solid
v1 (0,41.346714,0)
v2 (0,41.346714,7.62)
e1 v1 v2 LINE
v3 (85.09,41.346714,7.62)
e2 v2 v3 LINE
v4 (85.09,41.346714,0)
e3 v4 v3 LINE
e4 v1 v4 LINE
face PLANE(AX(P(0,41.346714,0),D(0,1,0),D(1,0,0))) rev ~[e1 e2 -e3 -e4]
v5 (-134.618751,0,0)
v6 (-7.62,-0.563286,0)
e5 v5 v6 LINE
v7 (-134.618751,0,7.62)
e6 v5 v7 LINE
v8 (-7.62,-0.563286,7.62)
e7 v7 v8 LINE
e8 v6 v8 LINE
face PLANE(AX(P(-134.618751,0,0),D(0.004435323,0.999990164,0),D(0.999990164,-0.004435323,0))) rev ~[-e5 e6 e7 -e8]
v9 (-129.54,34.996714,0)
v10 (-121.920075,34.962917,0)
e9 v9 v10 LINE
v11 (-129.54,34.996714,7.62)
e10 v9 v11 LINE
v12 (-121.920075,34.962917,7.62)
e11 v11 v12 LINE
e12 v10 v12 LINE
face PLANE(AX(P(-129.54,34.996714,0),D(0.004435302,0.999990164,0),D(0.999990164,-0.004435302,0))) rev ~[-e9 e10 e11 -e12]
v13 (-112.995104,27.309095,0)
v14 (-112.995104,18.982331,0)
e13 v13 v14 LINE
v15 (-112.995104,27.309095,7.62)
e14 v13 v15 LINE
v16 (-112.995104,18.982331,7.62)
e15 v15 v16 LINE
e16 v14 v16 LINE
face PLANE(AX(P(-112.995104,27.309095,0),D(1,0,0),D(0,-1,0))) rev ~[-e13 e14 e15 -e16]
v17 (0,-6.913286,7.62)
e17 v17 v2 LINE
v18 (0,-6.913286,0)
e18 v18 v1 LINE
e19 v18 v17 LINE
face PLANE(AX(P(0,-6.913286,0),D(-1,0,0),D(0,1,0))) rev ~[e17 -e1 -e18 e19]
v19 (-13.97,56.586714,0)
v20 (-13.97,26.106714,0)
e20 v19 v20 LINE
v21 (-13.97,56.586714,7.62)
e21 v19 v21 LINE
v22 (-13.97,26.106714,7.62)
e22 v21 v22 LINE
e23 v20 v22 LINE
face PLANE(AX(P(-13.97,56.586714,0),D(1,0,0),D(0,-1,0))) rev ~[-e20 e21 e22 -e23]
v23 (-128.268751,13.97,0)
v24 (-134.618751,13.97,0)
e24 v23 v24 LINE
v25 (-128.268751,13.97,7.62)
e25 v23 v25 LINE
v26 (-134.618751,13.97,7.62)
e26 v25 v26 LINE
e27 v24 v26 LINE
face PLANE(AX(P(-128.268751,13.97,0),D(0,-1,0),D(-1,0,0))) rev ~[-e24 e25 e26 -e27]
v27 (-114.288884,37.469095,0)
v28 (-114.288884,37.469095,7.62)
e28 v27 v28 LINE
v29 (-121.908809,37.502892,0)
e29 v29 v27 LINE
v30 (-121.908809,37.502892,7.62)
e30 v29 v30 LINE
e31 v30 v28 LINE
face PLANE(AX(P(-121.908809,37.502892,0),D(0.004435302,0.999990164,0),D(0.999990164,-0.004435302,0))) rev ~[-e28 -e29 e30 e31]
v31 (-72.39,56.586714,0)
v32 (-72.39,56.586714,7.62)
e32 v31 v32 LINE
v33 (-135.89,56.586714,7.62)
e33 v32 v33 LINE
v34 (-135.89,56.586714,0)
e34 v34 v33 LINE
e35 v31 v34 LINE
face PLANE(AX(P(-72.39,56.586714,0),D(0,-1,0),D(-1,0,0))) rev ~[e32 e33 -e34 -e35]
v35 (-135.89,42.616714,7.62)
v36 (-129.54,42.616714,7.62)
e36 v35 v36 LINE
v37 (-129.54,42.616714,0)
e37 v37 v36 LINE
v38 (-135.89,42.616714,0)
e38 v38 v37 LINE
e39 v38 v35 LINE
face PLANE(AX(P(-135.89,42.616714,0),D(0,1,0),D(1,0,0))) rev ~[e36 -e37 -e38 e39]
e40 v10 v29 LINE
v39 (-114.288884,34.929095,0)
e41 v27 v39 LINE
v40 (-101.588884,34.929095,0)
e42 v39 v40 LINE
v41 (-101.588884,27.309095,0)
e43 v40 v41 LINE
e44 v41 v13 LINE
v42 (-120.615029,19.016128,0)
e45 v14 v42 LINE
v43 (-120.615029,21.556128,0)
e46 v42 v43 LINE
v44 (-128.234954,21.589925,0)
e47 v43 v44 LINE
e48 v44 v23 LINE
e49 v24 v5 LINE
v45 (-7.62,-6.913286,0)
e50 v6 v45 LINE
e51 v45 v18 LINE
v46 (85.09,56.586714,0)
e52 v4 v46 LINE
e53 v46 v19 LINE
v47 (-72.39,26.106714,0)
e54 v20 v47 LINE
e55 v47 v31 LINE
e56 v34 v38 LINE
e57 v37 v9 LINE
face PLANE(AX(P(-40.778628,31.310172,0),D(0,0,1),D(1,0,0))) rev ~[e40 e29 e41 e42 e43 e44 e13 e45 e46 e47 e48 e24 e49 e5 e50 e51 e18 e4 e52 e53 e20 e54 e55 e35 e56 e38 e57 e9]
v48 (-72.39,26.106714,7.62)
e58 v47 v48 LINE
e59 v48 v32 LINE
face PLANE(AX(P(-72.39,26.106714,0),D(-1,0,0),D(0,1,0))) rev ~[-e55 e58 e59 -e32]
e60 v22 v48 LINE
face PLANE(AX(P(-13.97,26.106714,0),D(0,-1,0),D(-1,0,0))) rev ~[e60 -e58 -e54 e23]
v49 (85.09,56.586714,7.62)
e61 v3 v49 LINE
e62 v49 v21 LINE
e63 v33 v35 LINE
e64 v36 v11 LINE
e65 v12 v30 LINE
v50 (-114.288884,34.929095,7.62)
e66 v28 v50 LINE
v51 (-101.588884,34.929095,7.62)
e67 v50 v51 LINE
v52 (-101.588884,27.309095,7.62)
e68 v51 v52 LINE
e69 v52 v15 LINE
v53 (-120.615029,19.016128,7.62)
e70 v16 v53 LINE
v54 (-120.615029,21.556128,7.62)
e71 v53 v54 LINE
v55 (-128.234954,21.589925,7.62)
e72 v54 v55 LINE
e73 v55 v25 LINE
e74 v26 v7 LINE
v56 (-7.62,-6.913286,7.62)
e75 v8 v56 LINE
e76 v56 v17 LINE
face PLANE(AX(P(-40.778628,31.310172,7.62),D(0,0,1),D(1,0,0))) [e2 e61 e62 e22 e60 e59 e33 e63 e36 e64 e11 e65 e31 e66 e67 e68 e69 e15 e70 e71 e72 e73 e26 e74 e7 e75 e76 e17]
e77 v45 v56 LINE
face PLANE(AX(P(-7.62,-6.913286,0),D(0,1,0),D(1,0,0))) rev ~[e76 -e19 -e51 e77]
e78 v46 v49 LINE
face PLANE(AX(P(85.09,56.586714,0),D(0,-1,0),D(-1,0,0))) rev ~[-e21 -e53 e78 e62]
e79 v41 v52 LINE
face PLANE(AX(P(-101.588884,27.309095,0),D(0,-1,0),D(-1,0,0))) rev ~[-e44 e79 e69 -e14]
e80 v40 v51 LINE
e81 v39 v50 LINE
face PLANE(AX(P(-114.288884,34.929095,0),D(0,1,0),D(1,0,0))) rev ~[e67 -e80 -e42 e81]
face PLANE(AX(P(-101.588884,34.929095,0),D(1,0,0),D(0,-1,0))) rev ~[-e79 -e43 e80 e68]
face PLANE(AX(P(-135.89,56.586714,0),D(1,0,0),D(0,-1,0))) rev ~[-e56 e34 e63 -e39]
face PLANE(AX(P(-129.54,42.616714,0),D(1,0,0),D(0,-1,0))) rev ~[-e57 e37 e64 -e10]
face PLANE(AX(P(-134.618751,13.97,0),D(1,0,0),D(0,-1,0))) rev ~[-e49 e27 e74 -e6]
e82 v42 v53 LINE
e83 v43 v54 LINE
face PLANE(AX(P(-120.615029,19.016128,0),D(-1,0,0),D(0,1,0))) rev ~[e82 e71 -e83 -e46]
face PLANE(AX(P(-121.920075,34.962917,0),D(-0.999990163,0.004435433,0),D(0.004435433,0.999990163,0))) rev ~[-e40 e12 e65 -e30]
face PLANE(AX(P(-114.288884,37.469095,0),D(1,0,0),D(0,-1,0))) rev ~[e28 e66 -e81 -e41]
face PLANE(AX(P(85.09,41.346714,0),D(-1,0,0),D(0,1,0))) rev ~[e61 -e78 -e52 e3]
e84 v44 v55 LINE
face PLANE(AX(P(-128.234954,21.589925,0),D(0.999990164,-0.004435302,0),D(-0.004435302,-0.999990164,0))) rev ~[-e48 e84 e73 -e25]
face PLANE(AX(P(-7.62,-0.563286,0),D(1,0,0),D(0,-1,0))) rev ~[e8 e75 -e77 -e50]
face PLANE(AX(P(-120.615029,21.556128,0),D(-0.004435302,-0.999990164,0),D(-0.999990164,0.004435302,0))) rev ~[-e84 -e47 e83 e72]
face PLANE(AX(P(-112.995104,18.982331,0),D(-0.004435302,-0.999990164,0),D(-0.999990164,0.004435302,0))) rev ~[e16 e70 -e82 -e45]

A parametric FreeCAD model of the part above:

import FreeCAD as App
import Part
import Sketcher
Q = App.Units.Quantity

doc = App.newDocument("Part")
body = doc.addObject("PartDesign::Body", "Body")

# Sketch on XY plane
sketch1 = body.newObject("Sketcher::SketchObject", "Sketch")
sketch1.AttachmentSupport = (doc.getObject("XY_Plane"), [""])
sketch1.MapMode = "FlatFace"
sketch1.addGeometry([
    Part.LineSegment(App.Vector(-72.4, 56.6, 0), App.Vector(-135.9, 56.6, 0)),  # 0
    Part.LineSegment(App.Vector(-135.9, 56.6, 0), App.Vector(-135.9, 42.6, 0)),  # 1
    Part.LineSegment(App.Vector(-135.9, 42.6, 0), App.Vector(-129.5, 42.6, 0)),  # 2
    Part.LineSegment(App.Vector(-129.5, 42.6, 0), App.Vector(-129.5, 35, 0)),  # 3
    Part.LineSegment(App.Vector(-129.5, 35, 0), App.Vector(-121.9, 35, 0)),  # 4
    Part.LineSegment(App.Vector(-121.9, 35, 0), App.Vector(-121.9, 37.5, 0)),  # 5
    Part.LineSegment(App.Vector(-121.9, 37.5, 0), App.Vector(-114.3, 37.5, 0)),  # 6
    Part.LineSegment(App.Vector(-114.3, 37.5, 0), App.Vector(-114.3, 34.9, 0)),  # 7
    Part.LineSegment(App.Vector(-114.3, 34.9, 0), App.Vector(-101.6, 34.9, 0)),  # 8
    Part.LineSegment(App.Vector(-101.6, 34.9, 0), App.Vector(-101.6, 27.3, 0)),  # 9
    Part.LineSegment(App.Vector(-101.6, 27.3, 0), App.Vector(-113, 27.3, 0)),  # 10
    Part.LineSegment(App.Vector(-113, 27.3, 0), App.Vector(-113, 19, 0)),  # 11
    Part.LineSegment(App.Vector(-113, 19, 0), App.Vector(-120.6, 19, 0)),  # 12
    Part.LineSegment(App.Vector(-120.6, 19, 0), App.Vector(-120.6, 21.6, 0)),  # 13
    Part.LineSegment(App.Vector(-120.6, 21.6, 0), App.Vector(-128.2, 21.6, 0)),  # 14
    Part.LineSegment(App.Vector(-128.2, 21.6, 0), App.Vector(-128.3, 14, 0)),  # 15
    Part.LineSegment(App.Vector(-128.3, 14, 0), App.Vector(-134.6, 14, 0)),  # 16
    Part.LineSegment(App.Vector(-134.6, 14, 0), App.Vector(-134.6, 0, 0)),  # 17
    Part.LineSegment(App.Vector(-134.6, 0, 0), App.Vector(-7.6, -0.6, 0)),  # 18
    Part.LineSegment(App.Vector(-7.6, -0.6, 0), App.Vector(-7.6, -6.9, 0)),  # 19
    Part.LineSegment(App.Vector(-7.6, -6.9, 0), App.Vector(0, -6.9, 0)),  # 20
    Part.LineSegment(App.Vector(0, -6.9, 0), App.Vector(0, 41.3, 0)),  # 21
    Part.LineSegment(App.Vector(0, 41.3, 0), App.Vector(85.1, 41.3, 0)),  # 22
    Part.LineSegment(App.Vector(85.1, 41.3, 0), App.Vector(85.1, 56.6, 0)),  # 23
    Part.LineSegment(App.Vector(85.1, 56.6, 0), App.Vector(-14, 56.6, 0)),  # 24
    Part.LineSegment(App.Vector(-14, 56.6, 0), App.Vector(-14, 26.1, 0)),  # 25
    Part.LineSegment(App.Vector(-14, 26.1, 0), App.Vector(-72.4, 26.1, 0)),  # 26
    Part.LineSegment(App.Vector(-72.4, 26.1, 0), App.Vector(-72.4, 56.6, 0)),  # 27
], False)
sketch1.addConstraint([
    Sketcher.Constraint("Coincident", 0, 2, 1, 1),
    Sketcher.Constraint("Coincident", 1, 2, 2, 1),
    Sketcher.Constraint("Coincident", 2, 2, 3, 1),
    Sketcher.Constraint("Coincident", 3, 2, 4, 1),
    Sketcher.Constraint("Coincident", 4, 2, 5, 1),
    Sketcher.Constraint("Coincident", 5, 2, 6, 1),
    Sketcher.Constraint("Coincident", 6, 2, 7, 1),
    Sketcher.Constraint("Coincident", 7, 2, 8, 1),
    Sketcher.Constraint("Coincident", 8, 2, 9, 1),
    Sketcher.Constraint("Coincident", 9, 2, 10, 1),
    Sketcher.Constraint("Coincident", 10, 2, 11, 1),
    Sketcher.Constraint("Coincident", 11, 2, 12, 1),
    Sketcher.Constraint("Coincident", 12, 2, 13, 1),
    Sketcher.Constraint("Coincident", 13, 2, 14, 1),
    Sketcher.Constraint("Coincident", 14, 2, 15, 1),
    Sketcher.Constraint("Coincident", 15, 2, 16, 1),
    Sketcher.Constraint("Coincident", 16, 2, 17, 1),
    Sketcher.Constraint("Coincident", 17, 2, 18, 1),
    Sketcher.Constraint("Coincident", 18, 2, 19, 1),
    Sketcher.Constraint("Coincident", 19, 2, 20, 1),
    Sketcher.Constraint("Coincident", 20, 2, 21, 1),
    Sketcher.Constraint("Coincident", 21, 2, 22, 1),
    Sketcher.Constraint("Coincident", 22, 2, 23, 1),
    Sketcher.Constraint("Coincident", 23, 2, 24, 1),
    Sketcher.Constraint("Coincident", 24, 2, 25, 1),
    Sketcher.Constraint("Coincident", 25, 2, 26, 1),
    Sketcher.Constraint("Coincident", 26, 2, 27, 1),
    Sketcher.Constraint("Coincident", 27, 2, 0, 1),
    Sketcher.Constraint("Horizontal", 0),
    Sketcher.Constraint("Vertical", 1),
    Sketcher.Constraint("Horizontal", 2),
    Sketcher.Constraint("Vertical", 3),
    Sketcher.Constraint("Vertical", 7),
    Sketcher.Constraint("Horizontal", 8),
    Sketcher.Constraint("Vertical", 9),
    Sketcher.Constraint("Horizontal", 10),
    Sketcher.Constraint("Vertical", 11),
    Sketcher.Constraint("Vertical", 13),
    Sketcher.Constraint("Horizontal", 16),
    Sketcher.Constraint("Vertical", 17),
    Sketcher.Constraint("Vertical", 19),
    Sketcher.Constraint("Horizontal", 20),
    Sketcher.Constraint("Vertical", 21),
    Sketcher.Constraint("Horizontal", 22),
    Sketcher.Constraint("Vertical", 23),
    Sketcher.Constraint("Horizontal", 24),
    Sketcher.Constraint("Vertical", 25),
    Sketcher.Constraint("Horizontal", 26),
    Sketcher.Constraint("Vertical", 27),
    Sketcher.Constraint("PointOnObject", 17, 2, -1),
    Sketcher.Constraint("PointOnObject", 20, 2, -2),
    Sketcher.Constraint("Perpendicular", 4, 5),
    Sketcher.Constraint("Perpendicular", 5, 6),
    Sketcher.Constraint("Parallel", 6, 12),
    Sketcher.Constraint("Parallel", 12, 14),
    Sketcher.Constraint("Perpendicular", 14, 15),
    Sketcher.Constraint("Perpendicular", 15, 18),
    Sketcher.Constraint("Horizontal", 0, 2, 23, 2),
    Sketcher.Constraint("Equal", 2, 16),
    Sketcher.Constraint("Equal", 20, 3),
    Sketcher.Constraint("Equal", 3, 9),
    Sketcher.Constraint("Equal", 7, 13),
    Sketcher.Constraint("Equal", 1, 17),
    Sketcher.Constraint("Equal", 16, 19),
    Sketcher.Constraint("Equal", 4, 6),
    Sketcher.Constraint("Equal", 6, 12),
    Sketcher.Constraint("Equal", 12, 14),
    Sketcher.Constraint("Equal", 14, 15),
    Sketcher.Constraint("Distance", 18, Q("5 in")),
    Sketcher.Constraint("DistanceX", 0, 2, 0, 1, Q("2.5 in")),
    Sketcher.Constraint("DistanceX", 8, 1, 8, 2, Q("0.5 in")),
    Sketcher.Constraint("DistanceX", 20, 1, 20, 2, Q("0.3 in")),
    Sketcher.Constraint("DistanceX", 24, 2, 24, 1, Q("3.9 in")),
    Sketcher.Constraint("DistanceX", 26, 2, 26, 1, Q("2.3 in")),
    Sketcher.Constraint("DistanceY", 7, 2, 7, 1, Q("0.1 in")),
    Sketcher.Constraint("DistanceY", 21, 1, 21, 2, Q("1.9 in")),
    Sketcher.Constraint("DistanceY", 23, 1, 23, 2, Q("0.6 in")),
    Sketcher.Constraint("DistanceY", 25, 2, 25, 1, Q("1.2 in")),
    Sketcher.Constraint("Distance", 4, Q("0.3 in")),
    Sketcher.Constraint("Distance", 5, Q("0.1 in")),
    Sketcher.Constraint("DistanceX", 2, 1, 2, 2, Q("0.25 in")),
    Sketcher.Constraint("DistanceX", 22, 1, 22, 2, Q("3.35 in")),
    Sketcher.Constraint("DistanceY", 1, 2, 1, 1, Q("0.55 in")),
    Sketcher.Constraint("DistanceX", 10, 2, 10, 1, 11.40622),
])
pad1 = body.newObject("PartDesign::Pad", "Pad")
pad1.Profile = sketch1
pad1.Length = Q("0.3 in")

doc.recompute()
